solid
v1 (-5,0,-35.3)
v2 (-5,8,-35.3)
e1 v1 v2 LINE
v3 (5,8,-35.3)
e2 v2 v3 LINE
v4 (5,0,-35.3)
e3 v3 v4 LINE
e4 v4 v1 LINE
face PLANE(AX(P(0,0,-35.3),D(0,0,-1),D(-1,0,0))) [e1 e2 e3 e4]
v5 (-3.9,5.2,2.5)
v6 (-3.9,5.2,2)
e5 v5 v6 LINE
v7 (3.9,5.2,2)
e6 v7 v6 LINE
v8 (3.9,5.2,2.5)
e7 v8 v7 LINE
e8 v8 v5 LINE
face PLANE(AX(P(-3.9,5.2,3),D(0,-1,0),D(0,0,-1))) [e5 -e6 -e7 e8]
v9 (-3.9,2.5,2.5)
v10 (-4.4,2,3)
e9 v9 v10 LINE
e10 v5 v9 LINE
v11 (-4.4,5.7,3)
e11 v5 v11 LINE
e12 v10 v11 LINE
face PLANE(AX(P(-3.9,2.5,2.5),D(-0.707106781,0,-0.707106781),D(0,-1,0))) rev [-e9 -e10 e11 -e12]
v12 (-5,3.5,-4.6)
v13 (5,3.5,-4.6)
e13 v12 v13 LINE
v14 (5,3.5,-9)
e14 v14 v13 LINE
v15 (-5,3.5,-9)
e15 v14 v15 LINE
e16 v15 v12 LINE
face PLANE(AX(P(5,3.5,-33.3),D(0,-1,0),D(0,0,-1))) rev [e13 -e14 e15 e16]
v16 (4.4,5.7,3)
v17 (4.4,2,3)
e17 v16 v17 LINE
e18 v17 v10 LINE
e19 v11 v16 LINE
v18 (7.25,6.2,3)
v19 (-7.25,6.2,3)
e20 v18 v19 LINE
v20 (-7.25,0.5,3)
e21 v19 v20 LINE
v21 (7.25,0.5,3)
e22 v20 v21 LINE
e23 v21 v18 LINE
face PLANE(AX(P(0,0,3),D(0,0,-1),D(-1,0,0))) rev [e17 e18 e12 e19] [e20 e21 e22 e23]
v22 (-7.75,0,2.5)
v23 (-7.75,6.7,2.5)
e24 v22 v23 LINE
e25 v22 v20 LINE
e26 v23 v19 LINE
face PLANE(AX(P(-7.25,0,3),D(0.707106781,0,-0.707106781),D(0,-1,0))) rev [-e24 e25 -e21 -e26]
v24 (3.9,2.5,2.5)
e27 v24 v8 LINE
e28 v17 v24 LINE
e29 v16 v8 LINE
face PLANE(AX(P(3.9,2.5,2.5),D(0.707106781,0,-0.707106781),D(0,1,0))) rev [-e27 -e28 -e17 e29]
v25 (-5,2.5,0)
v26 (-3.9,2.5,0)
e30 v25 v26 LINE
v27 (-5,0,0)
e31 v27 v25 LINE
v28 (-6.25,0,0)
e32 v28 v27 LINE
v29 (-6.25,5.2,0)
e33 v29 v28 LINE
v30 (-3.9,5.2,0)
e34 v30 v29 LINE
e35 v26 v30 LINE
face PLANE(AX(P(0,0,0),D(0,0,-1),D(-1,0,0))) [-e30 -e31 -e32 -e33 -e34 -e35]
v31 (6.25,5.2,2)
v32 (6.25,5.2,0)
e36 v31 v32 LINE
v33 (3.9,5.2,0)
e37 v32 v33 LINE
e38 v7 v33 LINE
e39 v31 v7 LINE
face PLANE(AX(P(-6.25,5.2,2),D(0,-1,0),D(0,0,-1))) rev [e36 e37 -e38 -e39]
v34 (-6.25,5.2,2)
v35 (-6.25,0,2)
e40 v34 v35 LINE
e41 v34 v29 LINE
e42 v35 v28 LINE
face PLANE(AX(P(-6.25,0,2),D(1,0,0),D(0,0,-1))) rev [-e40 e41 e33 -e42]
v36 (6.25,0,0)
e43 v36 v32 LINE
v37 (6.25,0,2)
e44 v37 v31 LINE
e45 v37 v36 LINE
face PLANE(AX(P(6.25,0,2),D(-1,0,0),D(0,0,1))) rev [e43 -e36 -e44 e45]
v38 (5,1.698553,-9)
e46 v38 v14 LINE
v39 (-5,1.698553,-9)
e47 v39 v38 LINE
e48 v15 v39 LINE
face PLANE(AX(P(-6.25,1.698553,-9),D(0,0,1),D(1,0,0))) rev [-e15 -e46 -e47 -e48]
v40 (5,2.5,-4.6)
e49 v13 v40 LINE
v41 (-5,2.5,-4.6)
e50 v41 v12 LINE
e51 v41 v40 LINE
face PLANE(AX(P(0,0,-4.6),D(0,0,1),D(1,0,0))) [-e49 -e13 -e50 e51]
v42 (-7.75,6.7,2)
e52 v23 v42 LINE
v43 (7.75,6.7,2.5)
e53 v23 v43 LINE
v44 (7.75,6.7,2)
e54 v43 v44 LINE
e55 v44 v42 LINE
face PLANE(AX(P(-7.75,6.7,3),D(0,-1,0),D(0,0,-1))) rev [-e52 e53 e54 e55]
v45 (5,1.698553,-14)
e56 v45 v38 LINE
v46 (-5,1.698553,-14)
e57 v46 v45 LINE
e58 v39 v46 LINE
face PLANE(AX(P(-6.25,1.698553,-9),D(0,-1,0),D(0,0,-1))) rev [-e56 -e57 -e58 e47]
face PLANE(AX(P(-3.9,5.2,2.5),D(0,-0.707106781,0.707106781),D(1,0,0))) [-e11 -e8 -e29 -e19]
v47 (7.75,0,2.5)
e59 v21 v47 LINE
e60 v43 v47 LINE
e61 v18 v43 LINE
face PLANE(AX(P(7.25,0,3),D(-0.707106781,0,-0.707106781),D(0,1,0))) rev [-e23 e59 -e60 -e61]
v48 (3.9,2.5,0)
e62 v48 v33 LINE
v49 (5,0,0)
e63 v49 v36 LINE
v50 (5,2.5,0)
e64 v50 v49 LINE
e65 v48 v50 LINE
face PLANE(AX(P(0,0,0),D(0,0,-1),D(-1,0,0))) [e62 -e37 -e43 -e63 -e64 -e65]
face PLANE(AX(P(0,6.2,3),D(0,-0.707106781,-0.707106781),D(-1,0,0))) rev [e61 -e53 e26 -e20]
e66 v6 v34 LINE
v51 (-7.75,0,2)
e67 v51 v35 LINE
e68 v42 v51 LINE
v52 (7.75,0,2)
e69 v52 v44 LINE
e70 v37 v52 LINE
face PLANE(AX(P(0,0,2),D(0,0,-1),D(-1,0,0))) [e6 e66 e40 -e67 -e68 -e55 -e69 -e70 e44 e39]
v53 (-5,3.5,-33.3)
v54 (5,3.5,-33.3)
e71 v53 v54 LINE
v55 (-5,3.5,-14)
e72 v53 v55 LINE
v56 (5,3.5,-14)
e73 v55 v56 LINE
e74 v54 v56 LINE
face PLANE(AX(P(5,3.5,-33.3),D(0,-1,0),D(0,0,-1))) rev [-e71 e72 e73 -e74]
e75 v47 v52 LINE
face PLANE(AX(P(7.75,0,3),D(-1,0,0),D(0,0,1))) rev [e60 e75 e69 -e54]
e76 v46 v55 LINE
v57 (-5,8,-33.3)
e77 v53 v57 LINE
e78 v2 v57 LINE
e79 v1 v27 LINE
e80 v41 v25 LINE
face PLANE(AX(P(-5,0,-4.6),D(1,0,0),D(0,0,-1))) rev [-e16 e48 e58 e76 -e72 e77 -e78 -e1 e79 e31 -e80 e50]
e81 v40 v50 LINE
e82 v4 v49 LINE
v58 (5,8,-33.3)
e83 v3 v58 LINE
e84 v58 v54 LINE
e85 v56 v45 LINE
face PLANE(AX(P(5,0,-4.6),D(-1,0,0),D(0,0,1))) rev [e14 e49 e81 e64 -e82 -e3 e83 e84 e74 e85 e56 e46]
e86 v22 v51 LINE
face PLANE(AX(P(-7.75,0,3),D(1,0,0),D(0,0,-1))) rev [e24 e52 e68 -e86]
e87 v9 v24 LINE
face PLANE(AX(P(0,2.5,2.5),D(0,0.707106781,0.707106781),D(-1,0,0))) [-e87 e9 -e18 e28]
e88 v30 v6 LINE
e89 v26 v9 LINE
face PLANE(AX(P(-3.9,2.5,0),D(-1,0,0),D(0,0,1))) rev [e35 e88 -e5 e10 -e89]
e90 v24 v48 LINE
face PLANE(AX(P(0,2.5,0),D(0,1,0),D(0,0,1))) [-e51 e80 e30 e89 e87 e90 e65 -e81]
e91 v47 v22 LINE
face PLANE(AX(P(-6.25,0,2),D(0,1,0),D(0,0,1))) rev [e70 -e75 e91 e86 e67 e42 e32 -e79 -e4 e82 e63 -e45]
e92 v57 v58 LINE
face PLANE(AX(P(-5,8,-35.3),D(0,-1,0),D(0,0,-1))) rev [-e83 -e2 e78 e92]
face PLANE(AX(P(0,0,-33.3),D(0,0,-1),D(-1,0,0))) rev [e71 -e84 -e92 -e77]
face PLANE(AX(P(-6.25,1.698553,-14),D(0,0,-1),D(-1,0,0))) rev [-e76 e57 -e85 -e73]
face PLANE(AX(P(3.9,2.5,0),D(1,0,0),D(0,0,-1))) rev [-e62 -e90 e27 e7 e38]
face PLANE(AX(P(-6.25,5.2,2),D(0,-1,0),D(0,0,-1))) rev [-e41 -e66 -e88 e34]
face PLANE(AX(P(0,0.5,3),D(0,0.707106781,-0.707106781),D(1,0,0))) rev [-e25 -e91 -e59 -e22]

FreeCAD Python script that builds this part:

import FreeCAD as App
import Part
import Sketcher

V = App.Vector
Q = App.Units.Quantity


def edges_at(feature, points):
    """Names of the edges that pass closest to the given points."""
    edges = feature.Shape.Edges
    near = lambda p: min(range(len(edges)), key=lambda i: edges[i].distToShape(Part.Vertex(*p))[0])
    return sorted({f"Edge{near(p) + 1}" for p in points})


def add_polygon(sketch, points):
    """Adds a closed chain of lines whose ends are joined by coincident constraints."""
    first, n = sketch.GeometryCount, len(points)
    for a, b in zip(points, points[1:] + points[:1]):
        sketch.addGeometry(Part.LineSegment(App.Vector(*a, 0), App.Vector(*b, 0)), False)
    for i in range(n):
        sketch.addConstraint(Sketcher.Constraint("Coincident", first + i, 2, first + (i + 1) % n, 1))

doc = App.newDocument("Part")
body = doc.addObject("PartDesign::Body", "Body")

# Sketch on XY plane
sketch1 = body.newObject("Sketcher::SketchObject", "Sketch")
sketch1.AttachmentSupport = (doc.getObject("XY_Plane"), [""])
sketch1.MapMode = "FlatFace"
add_polygon(sketch1, [(-6, 5), (-6, 0), (6, 0), (6, 5)])  # lines 0-3
sketch1.addConstraint([
    Sketcher.Constraint("Vertical", 0),
    Sketcher.Constraint("Horizontal", 1),
    Sketcher.Constraint("Vertical", 2),
    Sketcher.Constraint("Horizontal", 3),
    Sketcher.Constraint("Symmetric", 0, 2, 1, 2, -1, 1),
    Sketcher.Constraint("DistanceX", 1, 1, 1, 2, Q("12.5 mm")),
    Sketcher.Constraint("DistanceY", 0, 2, 0, 1, Q("5.2 mm")),
])
pad1 = body.newObject("PartDesign::Pad", "Pad")
pad1.Profile = sketch1
pad1.Length = 2

# Sketch on XZ plane
sketch2 = body.newObject("Sketcher::SketchObject", "Sketch001")
sketch2.AttachmentSupport = (doc.getObject("XZ_Plane"), [""])
sketch2.MapMode = "FlatFace"
sketch2.AttachmentOffset = App.Placement(V(0, 0, -5.2), App.Rotation())
add_polygon(sketch2, [(-3.9, 0), (-3.9, 2), (3.9, 2), (3.9, 0)])  # lines 0-3
sketch2.addConstraint([
    Sketcher.Constraint("Vertical", 0),
    Sketcher.Constraint("Horizontal", 1),
    Sketcher.Constraint("Vertical", 2),
    Sketcher.Constraint("Horizontal", 3),
    Sketcher.Constraint("Symmetric", 2, 2, 3, 2, -1, 1),
    Sketcher.Constraint("DistanceY", 0, 1, 0, 2, Q("2 mm")),
    Sketcher.Constraint("DistanceX", 1, 1, 1, 2, Q("7.8 mm")),
])
pocket1 = body.newObject("PartDesign::Pocket", "Pocket")
pocket1.Profile = sketch2
pocket1.Length = 2.7
pocket1.Reversed = True

# Sketch on XY plane
sketch3 = body.newObject("Sketcher::SketchObject", "Sketch002")
sketch3.AttachmentSupport = (doc.getObject("XY_Plane"), [""])
sketch3.MapMode = "FlatFace"
add_polygon(sketch3, [(5, 2.5), (5, 0), (-5, 0), (-5, 2.5)])  # lines 0-3
sketch3.addConstraint([
    Sketcher.Constraint("Vertical", 0),
    Sketcher.Constraint("Horizontal", 1),
    Sketcher.Constraint("Vertical", 2),
    Sketcher.Constraint("Horizontal", 3),
    Sketcher.Constraint("Symmetric", 0, 2, 1, 2, -1, 1),
    Sketcher.Constraint("DistanceX", 1, 2, 1, 1, Q("10 mm")),
    Sketcher.Constraint("DistanceY", 0, 2, 0, 1, Q("2.5 mm")),
])
pad2 = body.newObject("PartDesign::Pad", "Pad001")
pad2.Profile = sketch3
pad2.Length = 4.6
pad2.Reversed = True

# Sketch on XY plane
sketch4 = body.newObject("Sketcher::SketchObject", "Sketch003")
sketch4.AttachmentSupport = (doc.getObject("XY_Plane"), [""])
sketch4.MapMode = "FlatFace"
sketch4.AttachmentOffset = App.Placement(V(0, 0, -4.6), App.Rotation())
add_polygon(sketch4, [(5, 3.5), (5, 0), (-5, 0), (-5, 3.5)])  # lines 0-3
sketch4.addConstraint([
    Sketcher.Constraint("Vertical", 0),
    Sketcher.Constraint("Horizontal", 1),
    Sketcher.Constraint("Vertical", 2),
    Sketcher.Constraint("Horizontal", 3),
    Sketcher.Constraint("Symmetric", 0, 2, 1, 2, -1, 1),
    Sketcher.Constraint("DistanceX", 1, 2, 1, 1, Q("10 mm")),
    Sketcher.Constraint("DistanceY", 0, 2, 0, 1, Q("3.5 mm")),
])
pad3 = body.newObject("PartDesign::Pad", "Pad002")
pad3.Profile = sketch4
pad3.Length = 28.7
pad3.Reversed = True

# Sketch on XY plane
sketch5 = body.newObject("Sketcher::SketchObject", "Sketch004")
sketch5.AttachmentSupport = (doc.getObject("XY_Plane"), [""])
sketch5.MapMode = "FlatFace"
sketch5.AttachmentOffset = App.Placement(V(0, 0, -33.3), App.Rotation())
add_polygon(sketch5, [(5, 8), (5, 0), (-5, 0), (-5, 8)])  # lines 0-3
sketch5.addConstraint([
    Sketcher.Constraint("Vertical", 0),
    Sketcher.Constraint("Horizontal", 1),
    Sketcher.Constraint("Vertical", 2),
    Sketcher.Constraint("Horizontal", 3),
    Sketcher.Constraint("Symmetric", 0, 2, 1, 2, -1, 1),
    Sketcher.Constraint("DistanceX", 1, 2, 1, 1, Q("10 mm")),
    Sketcher.Constraint("DistanceY", 0, 2, 0, 1, Q("8 mm")),
])
pad4 = body.newObject("PartDesign::Pad", "Pad003")
pad4.Profile = sketch5
pad4.Length = 2
pad4.Reversed = True

# Sketch on YZ plane
sketch6 = body.newObject("Sketcher::SketchObject", "Sketch005")
sketch6.AttachmentSupport = (doc.getObject("YZ_Plane"), [""])
sketch6.MapMode = "FlatFace"
add_polygon(sketch6, [(3.7, -9), (1.7, -9), (1.7, -14), (3.7, -14)])  # lines 0-3
sketch6.addConstraint([
    Sketcher.Constraint("Horizontal", 0),
    Sketcher.Constraint("Vertical", 1),
    Sketcher.Constraint("Horizontal", 2),
    Sketcher.Constraint("Vertical", 3),
    Sketcher.Constraint("DistanceX", 0, 2, 0, 1, Q("2 mm")),
    Sketcher.Constraint("DistanceY", 1, 2, 1, 1, Q("5 mm")),
    Sketcher.Constraint("DistanceY", 0, 2, -1, 1, Q("9 mm")),
    Sketcher.Constraint("DistanceX", -1, 1, 0, 2, Q("1.698553 mm")),
])
pocket2 = body.newObject("PartDesign::Pocket", "Pocket001")
pocket2.Profile = sketch6
pocket2.Type = "ThroughAll"
pocket2.Midplane = True

# Sketch on XY plane
sketch7 = body.newObject("Sketcher::SketchObject", "Sketch006")
sketch7.AttachmentSupport = (doc.getObject("XY_Plane"), [""])
sketch7.MapMode = "FlatFace"
sketch7.AttachmentOffset = App.Placement(V(0, 0, 2), App.Rotation())
add_polygon(sketch7, [(-7.8, 6.7), (-7.8, 0), (7.8, 0), (7.8, 6.7)])  # lines 0-3
add_polygon(sketch7, [(3.9, 2.5), (-3.9, 2.5), (-3.9, 5.2), (3.9, 5.2)])  # lines 4-7
sketch7.addConstraint([
    Sketcher.Constraint("Vertical", 0),
    Sketcher.Constraint("Horizontal", 1),
    Sketcher.Constraint("Vertical", 2),
    Sketcher.Constraint("Horizontal", 3),
    Sketcher.Constraint("Horizontal", 4),
    Sketcher.Constraint("Vertical", 5),
    Sketcher.Constraint("Horizontal", 6),
    Sketcher.Constraint("Vertical", 7),
    Sketcher.Constraint("Symmetric", 0, 2, 1, 2, -1, 1),
    Sketcher.Constraint("DistanceX", 1, 1, 1, 2, Q("15.5 mm")),
    Sketcher.Constraint("DistanceX", 4, 2, 4, 1, Q("7.8 mm")),
    Sketcher.Constraint("DistanceY", 0, 2, 0, 1, Q("6.7 mm")),
    Sketcher.Constraint("DistanceY", 5, 1, 5, 2, Q("2.7 mm")),
    Sketcher.Constraint("DistanceX", 4, 2, -1, 1, Q("3.9 mm")),
    Sketcher.Constraint("DistanceY", -1, 1, 4, 2, Q("2.5 mm")),
])
pad5 = body.newObject("PartDesign::Pad", "Pad004")
pad5.Profile = sketch7
pad5.Length = 1
doc.recompute()

chamfer = body.newObject("PartDesign::Chamfer", "Chamfer")
chamfer.Base = (pad5, edges_at(pad5, [
    (0, 5.2, 3),
    (-7.75, 3.35, 3),
    (0, 0, 3),
    (7.75, 3.35, 3),
    (0, 6.7, 3),
    (-3.9, 3.85, 3),
    (0, 2.5, 3),
    (3.9, 3.85, 3),
]))
chamfer.Size = 0.5

doc.recompute()
